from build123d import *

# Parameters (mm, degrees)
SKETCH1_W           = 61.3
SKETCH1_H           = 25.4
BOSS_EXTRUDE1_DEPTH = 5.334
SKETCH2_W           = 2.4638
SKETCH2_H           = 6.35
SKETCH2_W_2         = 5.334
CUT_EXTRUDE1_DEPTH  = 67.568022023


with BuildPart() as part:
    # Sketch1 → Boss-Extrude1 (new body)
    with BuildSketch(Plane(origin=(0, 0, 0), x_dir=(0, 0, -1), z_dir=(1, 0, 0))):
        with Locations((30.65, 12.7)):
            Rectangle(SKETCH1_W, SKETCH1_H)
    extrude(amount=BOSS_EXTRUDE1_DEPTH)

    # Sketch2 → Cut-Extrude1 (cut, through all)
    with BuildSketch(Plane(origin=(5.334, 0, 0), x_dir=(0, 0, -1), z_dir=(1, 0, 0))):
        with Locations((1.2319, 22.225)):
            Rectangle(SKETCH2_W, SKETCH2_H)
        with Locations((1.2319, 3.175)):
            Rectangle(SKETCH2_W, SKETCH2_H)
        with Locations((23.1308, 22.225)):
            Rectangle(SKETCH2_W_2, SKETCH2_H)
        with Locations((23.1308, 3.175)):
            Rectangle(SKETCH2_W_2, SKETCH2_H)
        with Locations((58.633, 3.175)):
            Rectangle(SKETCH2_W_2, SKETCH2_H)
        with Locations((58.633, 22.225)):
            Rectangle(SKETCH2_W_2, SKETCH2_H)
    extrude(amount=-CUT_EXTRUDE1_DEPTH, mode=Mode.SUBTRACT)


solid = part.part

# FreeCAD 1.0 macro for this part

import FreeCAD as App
import Part
import Sketcher
Q = App.Units.Quantity

doc = App.newDocument("Part")
body = doc.addObject("PartDesign::Body", "Body")

sketch1 = body.newObject("Sketcher::SketchObject", "Sketch")
sketch1.AttachmentSupport = (doc.getObject("YZ_Plane"), [""])
sketch1.MapMode = "FlatFace"
sketch1.addGeometry([
    Part.LineSegment(App.Vector(25, 0, 0), App.Vector(0, 0, 0)),
    Part.LineSegment(App.Vector(0, 0, 0), App.Vector(0, -61, 0)),
    Part.LineSegment(App.Vector(0, -61, 0), App.Vector(25, -61, 0)),
    Part.LineSegment(App.Vector(25, -61, 0), App.Vector(25, 0, 0)),
], False)
sketch1.addConstraint([
    Sketcher.Constraint("Coincident", 0, 2, 1, 1),
    Sketcher.Constraint("Coincident", 1, 2, 2, 1),
    Sketcher.Constraint("Coincident", 2, 2, 3, 1),
    Sketcher.Constraint("Coincident", 3, 2, 0, 1),
    Sketcher.Constraint("Horizontal", 0),
    Sketcher.Constraint("Vertical", 1),
    Sketcher.Constraint("Horizontal", 2),
    Sketcher.Constraint("Vertical", 3),
    Sketcher.Constraint("Coincident", 0, 2, -1, 1),
    Sketcher.Constraint("DistanceX", 0, 2, 0, 1, Q("1 in")),
    Sketcher.Constraint("DistanceY", 1, 2, 1, 1, 61.3),
])
pad1 = body.newObject("PartDesign::Pad", "Pad")
pad1.Profile = sketch1
pad1.Length = Q("0.21 in")

sketch2 = body.newObject("Sketcher::SketchObject", "Sketch001")
sketch2.AttachmentSupport = (doc.getObject("YZ_Plane"), [""])
sketch2.MapMode = "FlatFace"
sketch2.AttachmentOffset = App.Placement(App.Vector(0, 0, 0.21 * 25.4), App.Rotation())
sketch2.addGeometry([
    Part.LineSegment(App.Vector(25.4, 0, 0), App.Vector(19.1, 0, 0)),
    Part.LineSegment(App.Vector(19.1, 0, 0), App.Vector(19.1, -2.5, 0)),
    Part.LineSegment(App.Vector(19.1, -2.5, 0), App.Vector(25.4, -2.5, 0)),
    Part.LineSegment(App.Vector(25.4, -2.5, 0), App.Vector(25.4, 0, 0)),
    Part.LineSegment(App.Vector(6.3, 0, 0), App.Vector(0, 0, 0)),
    Part.LineSegment(App.Vector(0, 0, 0), App.Vector(0, -2.5, 0)),
    Part.LineSegment(App.Vector(0, -2.5, 0), App.Vector(6.3, -2.5, 0)),
    Part.LineSegment(App.Vector(6.3, -2.5, 0), App.Vector(6.3, 0, 0)),
    Part.LineSegment(App.Vector(25.4, -20.5, 0), App.Vector(19.1, -20.5, 0)),
    Part.LineSegment(App.Vector(19.1, -20.5, 0), App.Vector(19.1, -25.8, 0)),
    Part.LineSegment(App.Vector(19.1, -25.8, 0), App.Vector(25.4, -25.8, 0)),
    Part.LineSegment(App.Vector(25.4, -25.8, 0), App.Vector(25.4, -20.5, 0)),
    Part.LineSegment(App.Vector(6.3, -20.5, 0), App.Vector(0, -20.5, 0)),
    Part.LineSegment(App.Vector(0, -20.5, 0), App.Vector(0, -25.8, 0)),
    Part.LineSegment(App.Vector(0, -25.8, 0), App.Vector(6.3, -25.8, 0)),
    Part.LineSegment(App.Vector(6.3, -25.8, 0), App.Vector(6.3, -20.5, 0)),
    Part.LineSegment(App.Vector(6.3, -56, 0), App.Vector(0, -56, 0)),
    Part.LineSegment(App.Vector(0, -56, 0), App.Vector(0, -61.3, 0)),
    Part.LineSegment(App.Vector(0, -61.3, 0), App.Vector(6.3, -61.3, 0)),
    Part.LineSegment(App.Vector(6.3, -61.3, 0), App.Vector(6.3, -56, 0)),
    Part.LineSegment(App.Vector(25.4, -56, 0), App.Vector(19.1, -56, 0)),
    Part.LineSegment(App.Vector(19.1, -56, 0), App.Vector(19.1, -61.3, 0)),
    Part.LineSegment(App.Vector(19.1, -61.3, 0), App.Vector(25.4, -61.3, 0)),
    Part.LineSegment(App.Vector(25.4, -61.3, 0), App.Vector(25.4, -56, 0)),
], False)
sketch2.addConstraint([
    Sketcher.Constraint("Coincident", 0, 2, 1, 1),
    Sketcher.Constraint("Coincident", 1, 2, 2, 1),
    Sketcher.Constraint("Coincident", 2, 2, 3, 1),
    Sketcher.Constraint("Coincident", 3, 2, 0, 1),
    Sketcher.Constraint("Coincident", 4, 2, 5, 1),
    Sketcher.Constraint("Coincident", 5, 2, 6, 1),
    Sketcher.Constraint("Coincident", 6, 2, 7, 1),
    Sketcher.Constraint("Coincident", 7, 2, 4, 1),
    Sketcher.Constraint("Coincident", 8, 2, 9, 1),
    Sketcher.Constraint("Coincident", 9, 2, 10, 1),
    Sketcher.Constraint("Coincident", 10, 2, 11, 1),
    Sketcher.Constraint("Coincident", 11, 2, 8, 1),
    Sketcher.Constraint("Coincident", 12, 2, 13, 1),
    Sketcher.Constraint("Coincident", 13, 2, 14, 1),
    Sketcher.Constraint("Coincident", 14, 2, 15, 1),
    Sketcher.Constraint("Coincident", 15, 2, 12, 1),
    Sketcher.Constraint("Coincident", 16, 2, 17, 1),
    Sketcher.Constraint("Coincident", 17, 2, 18, 1),
    Sketcher.Constraint("Coincident", 18, 2, 19, 1),
    Sketcher.Constraint("Coincident", 19, 2, 16, 1),
    Sketcher.Constraint("Coincident", 20, 2, 21, 1),
    Sketcher.Constraint("Coincident", 21, 2, 22, 1),
    Sketcher.Constraint("Coincident", 22, 2, 23, 1),
    Sketcher.Constraint("Coincident", 23, 2, 20, 1),
    Sketcher.Constraint("Horizontal", 0),
    Sketcher.Constraint("Vertical", 1),
    Sketcher.Constraint("Horizontal", 2),
    Sketcher.Constraint("Vertical", 3),
    Sketcher.Constraint("Horizontal", 4),
    Sketcher.Constraint("Vertical", 5),
    Sketcher.Constraint("Horizontal", 6),
    Sketcher.Constraint("Vertical", 7),
    Sketcher.Constraint("Horizontal", 8),
    Sketcher.Constraint("Vertical", 9),
    Sketcher.Constraint("Horizontal", 10),
    Sketcher.Constraint("Vertical", 11),
    Sketcher.Constraint("Horizontal", 12),
    Sketcher.Constraint("Vertical", 13),
    Sketcher.Constraint("Horizontal", 14),
    Sketcher.Constraint("Vertical", 15),
    Sketcher.Constraint("Horizontal", 16),
    Sketcher.Constraint("Vertical", 17),
    Sketcher.Constraint("Horizontal", 18),
    Sketcher.Constraint("Vertical", 19),
    Sketcher.Constraint("Horizontal", 20),
    Sketcher.Constraint("Vertical", 21),
    Sketcher.Constraint("Horizontal", 22),
    Sketcher.Constraint("Vertical", 23),
    Sketcher.Constraint("Coincident", 4, 2, -1, 1),
    Sketcher.Constraint("PointOnObject", 0, 2, -1),
    Sketcher.Constraint("PointOnObject", 12, 2, -2),
    Sketcher.Constraint("PointOnObject", 16, 2, -2),
    Sketcher.Constraint("Horizontal", 2, 2, 5, 2),
    Sketcher.Constraint("Horizontal", 11, 2, 12, 2),
    Sketcher.Constraint("Horizontal", 10, 2, 13, 2),
    Sketcher.Constraint("Horizontal", 19, 2, 20, 2),
    Sketcher.Constraint("Horizontal", 18, 2, 21, 2),
    Sketcher.Constraint("Vertical", 1, 2, 8, 2),
    Sketcher.Constraint("Vertical", 3, 2, 10, 2),
    Sketcher.Constraint("Vertical", 7, 2, 14, 2),
    Sketcher.Constraint("Vertical", 15, 2, 18, 2),
    Sketcher.Constraint("Vertical", 9, 2, 20, 2),
    Sketcher.Constraint("Vertical", 11, 2, 22, 2),
    Sketcher.Constraint("Equal", 2, 4),
    Sketcher.Constraint("Equal", 15, 17),
    Sketcher.Constraint("DistanceX", -1, 1, 2, 2, Q("1 in")),
    Sketcher.Constraint("DistanceX", 0, 2, 0, 1, Q("0.25 in")),
    Sketcher.Constraint("DistanceY", 9, 2, 9, 1, Q("0.21 in")),
    Sketcher.Constraint("DistanceY", 1, 2, 1, 1, Q("0.097 in")),
    Sketcher.Constraint("DistanceY", 8, 2, -1, 1, 20.4638),
    Sketcher.Constraint("DistanceY", 16, 2, -1, 1, 55.966),
])
pocket1 = body.newObject("PartDesign::Pocket", "Pocket")
pocket1.Profile = sketch2
pocket1.Type = "ThroughAll"

doc.recompute()
